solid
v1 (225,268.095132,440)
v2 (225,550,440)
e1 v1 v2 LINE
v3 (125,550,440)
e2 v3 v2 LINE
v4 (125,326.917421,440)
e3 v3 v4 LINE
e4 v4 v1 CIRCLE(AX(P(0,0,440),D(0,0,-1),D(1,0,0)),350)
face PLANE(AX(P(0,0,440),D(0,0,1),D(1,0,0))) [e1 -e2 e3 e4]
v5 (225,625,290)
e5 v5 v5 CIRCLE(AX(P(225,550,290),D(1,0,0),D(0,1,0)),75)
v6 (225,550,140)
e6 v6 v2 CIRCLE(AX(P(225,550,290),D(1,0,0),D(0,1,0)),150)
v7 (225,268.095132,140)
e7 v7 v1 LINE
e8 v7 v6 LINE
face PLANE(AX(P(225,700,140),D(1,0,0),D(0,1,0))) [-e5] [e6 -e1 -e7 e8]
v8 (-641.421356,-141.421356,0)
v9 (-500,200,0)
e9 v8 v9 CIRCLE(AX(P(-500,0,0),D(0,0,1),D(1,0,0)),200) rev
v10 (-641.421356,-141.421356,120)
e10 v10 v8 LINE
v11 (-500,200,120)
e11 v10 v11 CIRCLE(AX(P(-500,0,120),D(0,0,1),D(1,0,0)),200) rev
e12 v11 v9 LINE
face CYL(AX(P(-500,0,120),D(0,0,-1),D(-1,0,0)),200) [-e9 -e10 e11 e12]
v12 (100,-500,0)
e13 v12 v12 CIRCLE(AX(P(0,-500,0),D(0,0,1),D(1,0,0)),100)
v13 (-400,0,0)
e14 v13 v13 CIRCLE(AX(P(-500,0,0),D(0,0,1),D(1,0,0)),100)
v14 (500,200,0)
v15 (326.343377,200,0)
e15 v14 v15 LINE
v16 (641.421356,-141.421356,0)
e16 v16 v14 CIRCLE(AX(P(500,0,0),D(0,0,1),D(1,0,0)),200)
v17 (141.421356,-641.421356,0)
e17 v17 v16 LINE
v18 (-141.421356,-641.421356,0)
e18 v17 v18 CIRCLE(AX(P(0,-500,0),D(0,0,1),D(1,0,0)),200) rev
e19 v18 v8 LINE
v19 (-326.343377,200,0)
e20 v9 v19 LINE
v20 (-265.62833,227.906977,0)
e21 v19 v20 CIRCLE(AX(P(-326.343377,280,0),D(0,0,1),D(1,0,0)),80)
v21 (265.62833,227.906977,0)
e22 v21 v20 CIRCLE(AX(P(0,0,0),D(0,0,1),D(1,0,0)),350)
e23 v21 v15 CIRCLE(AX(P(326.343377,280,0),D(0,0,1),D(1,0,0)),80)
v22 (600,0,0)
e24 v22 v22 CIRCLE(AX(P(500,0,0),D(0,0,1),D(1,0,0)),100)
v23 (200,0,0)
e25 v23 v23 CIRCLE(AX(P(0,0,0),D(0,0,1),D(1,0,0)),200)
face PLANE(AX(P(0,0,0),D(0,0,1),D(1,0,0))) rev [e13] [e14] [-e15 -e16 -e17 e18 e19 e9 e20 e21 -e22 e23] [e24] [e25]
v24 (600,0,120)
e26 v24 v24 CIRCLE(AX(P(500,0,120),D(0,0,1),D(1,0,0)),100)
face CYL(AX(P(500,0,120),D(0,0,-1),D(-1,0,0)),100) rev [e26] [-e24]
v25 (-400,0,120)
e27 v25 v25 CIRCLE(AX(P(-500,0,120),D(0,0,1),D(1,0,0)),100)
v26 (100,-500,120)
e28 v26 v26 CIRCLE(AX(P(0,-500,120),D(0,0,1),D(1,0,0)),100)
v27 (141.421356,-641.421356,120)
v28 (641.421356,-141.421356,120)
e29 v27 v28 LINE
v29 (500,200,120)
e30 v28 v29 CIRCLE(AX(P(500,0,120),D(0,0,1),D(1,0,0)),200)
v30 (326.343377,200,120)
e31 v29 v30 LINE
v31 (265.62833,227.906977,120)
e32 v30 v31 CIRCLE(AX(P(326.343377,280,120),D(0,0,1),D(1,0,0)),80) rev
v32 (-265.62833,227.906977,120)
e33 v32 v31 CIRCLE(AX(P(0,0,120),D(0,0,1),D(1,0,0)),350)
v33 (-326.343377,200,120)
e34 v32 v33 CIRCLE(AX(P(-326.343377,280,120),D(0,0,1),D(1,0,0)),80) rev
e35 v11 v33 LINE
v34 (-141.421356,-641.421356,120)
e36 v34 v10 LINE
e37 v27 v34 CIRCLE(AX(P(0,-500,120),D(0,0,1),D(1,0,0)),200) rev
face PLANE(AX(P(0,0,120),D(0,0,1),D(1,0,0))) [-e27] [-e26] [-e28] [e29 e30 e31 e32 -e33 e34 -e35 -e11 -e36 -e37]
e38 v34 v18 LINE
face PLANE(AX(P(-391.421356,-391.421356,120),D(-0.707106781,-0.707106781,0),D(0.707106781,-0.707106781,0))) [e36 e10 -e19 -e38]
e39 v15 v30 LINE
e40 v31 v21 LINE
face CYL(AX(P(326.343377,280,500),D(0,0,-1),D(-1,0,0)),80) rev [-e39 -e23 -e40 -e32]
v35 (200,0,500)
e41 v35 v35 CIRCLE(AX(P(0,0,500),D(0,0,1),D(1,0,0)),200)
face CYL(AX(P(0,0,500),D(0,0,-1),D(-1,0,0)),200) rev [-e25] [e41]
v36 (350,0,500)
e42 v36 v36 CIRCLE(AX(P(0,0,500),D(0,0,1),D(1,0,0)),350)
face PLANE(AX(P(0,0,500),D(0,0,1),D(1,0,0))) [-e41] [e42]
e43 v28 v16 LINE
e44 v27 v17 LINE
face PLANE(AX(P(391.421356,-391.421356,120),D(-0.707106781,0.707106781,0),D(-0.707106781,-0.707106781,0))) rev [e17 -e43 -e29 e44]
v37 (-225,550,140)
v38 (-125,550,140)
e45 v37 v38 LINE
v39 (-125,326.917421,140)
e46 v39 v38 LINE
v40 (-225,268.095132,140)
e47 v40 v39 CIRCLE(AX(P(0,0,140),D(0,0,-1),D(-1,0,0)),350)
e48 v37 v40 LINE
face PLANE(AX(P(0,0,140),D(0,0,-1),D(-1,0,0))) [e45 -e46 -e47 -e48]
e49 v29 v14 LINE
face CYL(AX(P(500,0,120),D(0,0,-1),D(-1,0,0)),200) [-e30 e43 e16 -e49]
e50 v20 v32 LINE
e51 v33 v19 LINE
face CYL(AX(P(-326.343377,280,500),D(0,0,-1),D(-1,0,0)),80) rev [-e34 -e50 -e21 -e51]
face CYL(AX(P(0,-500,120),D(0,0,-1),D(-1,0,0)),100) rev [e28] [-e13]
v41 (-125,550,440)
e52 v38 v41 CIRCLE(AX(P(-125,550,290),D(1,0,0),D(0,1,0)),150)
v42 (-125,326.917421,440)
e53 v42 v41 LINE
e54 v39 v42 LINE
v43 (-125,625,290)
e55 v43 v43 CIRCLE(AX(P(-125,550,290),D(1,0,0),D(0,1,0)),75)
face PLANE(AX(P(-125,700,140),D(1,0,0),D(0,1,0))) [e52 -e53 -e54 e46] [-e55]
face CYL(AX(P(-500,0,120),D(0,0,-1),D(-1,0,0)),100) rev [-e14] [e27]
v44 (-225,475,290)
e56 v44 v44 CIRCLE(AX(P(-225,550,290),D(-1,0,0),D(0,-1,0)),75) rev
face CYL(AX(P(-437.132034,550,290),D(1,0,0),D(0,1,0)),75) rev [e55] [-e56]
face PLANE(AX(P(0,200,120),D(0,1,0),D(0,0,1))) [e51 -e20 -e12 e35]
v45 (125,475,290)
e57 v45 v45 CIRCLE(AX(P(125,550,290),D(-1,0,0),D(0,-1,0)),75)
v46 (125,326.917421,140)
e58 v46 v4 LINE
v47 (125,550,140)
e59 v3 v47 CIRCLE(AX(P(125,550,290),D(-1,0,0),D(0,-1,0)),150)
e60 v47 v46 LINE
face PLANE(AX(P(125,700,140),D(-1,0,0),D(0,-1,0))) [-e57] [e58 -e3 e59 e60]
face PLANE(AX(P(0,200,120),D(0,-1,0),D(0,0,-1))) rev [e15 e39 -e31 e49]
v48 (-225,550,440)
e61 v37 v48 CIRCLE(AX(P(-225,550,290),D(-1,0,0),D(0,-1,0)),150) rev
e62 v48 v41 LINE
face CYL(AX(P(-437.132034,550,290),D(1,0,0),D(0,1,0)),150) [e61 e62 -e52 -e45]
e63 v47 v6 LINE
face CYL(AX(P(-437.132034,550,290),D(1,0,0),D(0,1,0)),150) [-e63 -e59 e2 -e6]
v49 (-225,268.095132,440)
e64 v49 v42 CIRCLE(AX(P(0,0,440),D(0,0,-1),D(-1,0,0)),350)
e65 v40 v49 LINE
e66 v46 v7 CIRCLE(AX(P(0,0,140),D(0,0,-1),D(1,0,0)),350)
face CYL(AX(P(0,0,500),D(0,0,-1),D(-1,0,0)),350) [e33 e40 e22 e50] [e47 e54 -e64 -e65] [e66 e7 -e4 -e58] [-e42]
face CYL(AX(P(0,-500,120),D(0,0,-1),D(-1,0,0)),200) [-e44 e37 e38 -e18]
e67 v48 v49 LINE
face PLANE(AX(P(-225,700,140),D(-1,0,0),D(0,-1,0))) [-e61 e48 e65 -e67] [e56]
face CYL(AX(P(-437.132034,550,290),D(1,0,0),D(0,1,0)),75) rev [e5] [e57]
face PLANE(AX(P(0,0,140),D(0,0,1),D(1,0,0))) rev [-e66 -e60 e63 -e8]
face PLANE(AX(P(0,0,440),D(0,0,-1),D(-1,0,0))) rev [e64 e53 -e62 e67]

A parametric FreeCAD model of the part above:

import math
import FreeCAD as App
import Part
import Sketcher
from FreeCAD import Vector


def edges_at(feature, points):
    """Names of the edges that pass closest to the given points."""
    edges = feature.Shape.Edges
    near = lambda p: min(range(len(edges)), key=lambda i: edges[i].distToShape(Part.Vertex(*p))[0])
    return sorted({f"Edge{near(p) + 1}" for p in points})

doc = App.newDocument("Part")
params = doc.addObject("Spreadsheet::Sheet", "Params")
for row, (alias, value) in enumerate([
    ("sketch1_diameter", "700 mm"),
    ("sketch1_diameter2", "400 mm"),
    ("pad1_length", "500 mm"),
    ("sketch2_diameter", "200 mm"),
    ("sketch2_radius", "200 mm"),
    ("sketch2_radius2", "350 mm"),
    ("pad2_length", "120 mm"),
    ("fillet_radius", "80 mm"),
    ("sketch3_radius", "350 mm"),
    ("sketch3_width", "100 mm"),
    ("pad3_length", "300 mm"),
    ("sketch4_diameter", "150 mm"),
    ("sketch4_radius", "150 mm"),
    ("pocket1_length", "450 mm"),
], start=1):
    params.set(f"A{row}", alias)
    params.set(f"B{row}", "=" + value)
    params.setAlias(f"B{row}", alias)

body = doc.addObject("PartDesign::Body", "Body")

# Sketch on XY plane
sketch1 = doc.addObject("Sketcher::SketchObject", "Sketch")
body.addObject(sketch1)
sketch1.AttachmentSupport = (doc.XY_Plane, [""])
sketch1.MapMode = "FlatFace"
sketch1.addGeometry([
    Part.Circle(Vector(0, 0, 0), Vector(0, 0, 1), 350),
    Part.Circle(Vector(0, 0, 0), Vector(0, 0, 1), 200),
], False)
sketch1.addConstraint([
    Sketcher.Constraint("Coincident", 0, 3, -1, 1),
    Sketcher.Constraint("Coincident", 1, 3, -1, 1),
    Sketcher.Constraint("Diameter", 0, 700.0),
    Sketcher.Constraint("Diameter", 1, 400.0),
])
sketch1.setExpression("Constraints[2]", "Params.sketch1_diameter")
sketch1.setExpression("Constraints[3]", "Params.sketch1_diameter2")
pad1 = doc.addObject("PartDesign::Pad", "Pad")
body.addObject(pad1)
pad1.Profile = sketch1
pad1.setExpression("Length", "Params.pad1_length")

# Sketch on XY plane
sketch2 = doc.addObject("Sketcher::SketchObject", "Sketch001")
body.addObject(sketch2)
sketch2.AttachmentSupport = (doc.XY_Plane, [""])
sketch2.MapMode = "FlatFace"
sketch2.addGeometry([
    Part.ArcOfCircle(Part.Circle(Vector(0, -500, 0), Vector(0, 0, 1), 200), math.radians(-135), math.radians(-45)),  # 0
    Part.LineSegment(Vector(141, -641, 0), Vector(641, -141, 0)),  # 1
    Part.ArcOfCircle(Part.Circle(Vector(500, 0, 0), Vector(0, 0, 1), 200), math.radians(-45), math.radians(90)),  # 2
    Part.LineSegment(Vector(500, 200, 0), Vector(287, 200, 0)),  # 3
    Part.ArcOfCircle(Part.Circle(Vector(0, 0, 0), Vector(0, 0, 1), 350), math.radians(0), math.radians(35)),  # 4
    Part.ArcOfCircle(Part.Circle(Vector(0, 0, 0), Vector(0, 0, 1), 350), math.radians(145), math.radians(360)),  # 5
    Part.LineSegment(Vector(-287, 200, 0), Vector(-500, 200, 0)),  # 6
    Part.ArcOfCircle(Part.Circle(Vector(-500, 0, 0), Vector(0, 0, 1), 200), math.radians(90), math.radians(225)),  # 7
    Part.LineSegment(Vector(-641, -141, 0), Vector(-141, -641, 0)),  # 8
    Part.Circle(Vector(0, -500, 0), Vector(0, 0, 1), 100),  # 9
    Part.Circle(Vector(-500, 0, 0), Vector(0, 0, 1), 100),  # 10
    Part.Circle(Vector(500, 0, 0), Vector(0, 0, 1), 100),  # 11
], False)
sketch2.addConstraint([
    Sketcher.Constraint("Tangent", 0, 2, 1, 1),
    Sketcher.Constraint("Tangent", 1, 2, 2, 1),
    Sketcher.Constraint("Tangent", 2, 2, 3, 1),
    Sketcher.Constraint("Coincident", 3, 2, 4, 2),
    Sketcher.Constraint("Tangent", 4, 1, 5, 2),
    Sketcher.Constraint("Coincident", 5, 1, 6, 1),
    Sketcher.Constraint("Tangent", 6, 2, 7, 1),
    Sketcher.Constraint("Tangent", 7, 2, 8, 1),
    Sketcher.Constraint("Tangent", 8, 2, 0, 1),
    Sketcher.Constraint("Horizontal", 3),
    Sketcher.Constraint("Horizontal", 6),
    Sketcher.Constraint("Coincident", 4, 3, -1, 1),
    Sketcher.Constraint("Coincident", 9, 3, 0, 3),
    Sketcher.Constraint("Coincident", 10, 3, 7, 3),
    Sketcher.Constraint("Coincident", 11, 3, 2, 3),
    Sketcher.Constraint("Equal", 0, 2),
    Sketcher.Constraint("Equal", 4, 5),
    Sketcher.Constraint("Equal", 2, 7),
    Sketcher.Constraint("Equal", 9, 10),
    Sketcher.Constraint("Equal", 10, 11),
    Sketcher.Constraint("Symmetric", 2, 3, 7, 3, -1, 1),
    Sketcher.Constraint("PointOnObject", 0, 3, -2),
    Sketcher.Constraint("PointOnObject", 2, 3, -1),
    Sketcher.Constraint("PointOnObject", 4, 1, -1),
    Sketcher.Constraint("Perpendicular", 1, 8),
    Sketcher.Constraint("Diameter", 9, 200.0),
    Sketcher.Constraint("Radius", 0, 200.0),
    Sketcher.Constraint("Radius", 4, 350.0),
    Sketcher.Constraint("DistanceY", 0, 3, -1, 1, 500.0),
])
sketch2.setExpression("Constraints[25]", "Params.sketch2_diameter")
sketch2.setExpression("Constraints[26]", "Params.sketch2_radius")
sketch2.setExpression("Constraints[27]", "Params.sketch2_radius2")
pad2 = doc.addObject("PartDesign::Pad", "Pad001")
body.addObject(pad2)
pad2.Profile = sketch2
pad2.setExpression("Length", "Params.pad2_length")
doc.recompute()

fillet = doc.addObject("PartDesign::Fillet", "Fillet")
body.addObject(fillet)
fillet.Base = (pad2, edges_at(pad2, [(287.228, 200, 60), (-287.228, 200, 60)]))
fillet.setExpression("Radius", "Params.fillet_radius")

# Sketch on XY plane
sketch3 = doc.addObject("Sketcher::SketchObject", "Sketch002")
body.addObject(sketch3)
sketch3.AttachmentSupport = (doc.XY_Plane, [""])
sketch3.MapMode = "FlatFace"
sketch3.AttachmentOffset = App.Placement(Vector(0, 0, 440), App.Rotation())
sketch3.addGeometry([
    Part.LineSegment(Vector(225, 700, 0), Vector(125, 700, 0)),  # 0
    Part.LineSegment(Vector(125, 700, 0), Vector(125, 327, 0)),  # 1
    Part.ArcOfCircle(Part.Circle(Vector(0, 0, 0), Vector(0, 0, 1), 350), math.radians(49.99), math.radians(69.08)),  # 2
    Part.LineSegment(Vector(225, 268, 0), Vector(225, 700, 0)),  # 3
    Part.LineSegment(Vector(-225, 700, 0), Vector(-225, 268, 0)),  # 4
    Part.ArcOfCircle(Part.Circle(Vector(0, 0, 0), Vector(0, 0, 1), 350), math.radians(110.92), math.radians(130.01)),  # 5
    Part.LineSegment(Vector(-125, 327, 0), Vector(-125, 700, 0)),  # 6
    Part.LineSegment(Vector(-125, 700, 0), Vector(-225, 700, 0)),  # 7
], False)
sketch3.addConstraint([
    Sketcher.Constraint("Coincident", 0, 2, 1, 1),
    Sketcher.Constraint("Coincident", 1, 2, 2, 2),
    Sketcher.Constraint("Coincident", 2, 1, 3, 1),
    Sketcher.Constraint("Coincident", 3, 2, 0, 1),
    Sketcher.Constraint("Coincident", 4, 2, 5, 2),
    Sketcher.Constraint("Coincident", 5, 1, 6, 1),
    Sketcher.Constraint("Coincident", 6, 2, 7, 1),
    Sketcher.Constraint("Coincident", 7, 2, 4, 1),
    Sketcher.Constraint("Horizontal", 0),
    Sketcher.Constraint("Vertical", 1),
    Sketcher.Constraint("Vertical", 3),
    Sketcher.Constraint("Vertical", 4),
    Sketcher.Constraint("Vertical", 6),
    Sketcher.Constraint("Horizontal", 7),
    Sketcher.Constraint("Coincident", 2, 3, -1, 1),
    Sketcher.Constraint("Coincident", 5, 3, -1, 1),
    Sketcher.Constraint("Equal", 2, 5),
    Sketcher.Constraint("Symmetric", 0, 2, 6, 2, -2),
    Sketcher.Constraint("Horizontal", 2, 1, 4, 2),
    Sketcher.Constraint("Radius", 2, 350.0),
    Sketcher.Constraint("DistanceX", 0, 2, 0, 1, 100.0),
    Sketcher.Constraint("DistanceX", -1, 1, 0, 2, 125.0),
    Sketcher.Constraint("DistanceY", -1, 1, 0, 2, 700.0),
])
sketch3.setExpression("Constraints[19]", "Params.sketch3_radius")
sketch3.setExpression("Constraints[20]", "Params.sketch3_width")
pad3 = doc.addObject("PartDesign::Pad", "Pad002")
body.addObject(pad3)
pad3.Profile = sketch3
pad3.setExpression("Length", "Params.pad3_length")
pad3.Reversed = True

# Sketch on YZ plane
sketch4 = doc.addObject("Sketcher::SketchObject", "Sketch003")
body.addObject(sketch4)
sketch4.AttachmentSupport = (doc.YZ_Plane, [""])
sketch4.MapMode = "FlatFace"
sketch4.AttachmentOffset = App.Placement(Vector(0, 0, 225), App.Rotation())
sketch4.addGeometry([
    Part.ArcOfCircle(Part.Circle(Vector(550, 290, 0), Vector(0, 0, 1), 150), math.radians(0), math.radians(90)),  # 0
    Part.LineSegment(Vector(700, 290, 0), Vector(700, 440, 0)),  # 1
    Part.LineSegment(Vector(700, 440, 0), Vector(550, 440, 0)),  # 2
    Part.ArcOfCircle(Part.Circle(Vector(550, 290, 0), Vector(0, 0, 1), 150), math.radians(-90), math.radians(0)),  # 3
    Part.LineSegment(Vector(550, 140, 0), Vector(700, 140, 0)),  # 4
    Part.LineSegment(Vector(700, 140, 0), Vector(700, 290, 0)),  # 5
    Part.Circle(Vector(550, 290, 0), Vector(0, 0, 1), 75),  # 6
], False)
sketch4.addConstraint([
    Sketcher.Constraint("Tangent", 0, 1, 1, 1),
    Sketcher.Constraint("Coincident", 1, 2, 2, 1),
    Sketcher.Constraint("Tangent", 2, 2, 0, 2),
    Sketcher.Constraint("Tangent", 3, 1, 4, 1),
    Sketcher.Constraint("Coincident", 4, 2, 5, 1),
    Sketcher.Constraint("Tangent", 5, 2, 3, 2),
    Sketcher.Constraint("Vertical", 1),
    Sketcher.Constraint("Horizontal", 2),
    Sketcher.Constraint("Horizontal", 4),
    Sketcher.Constraint("Vertical", 5),
    Sketcher.Constraint("Coincident", 3, 3, 0, 3),
    Sketcher.Constraint("Coincident", 6, 3, 0, 3),
    Sketcher.Constraint("Equal", 0, 3),
    Sketcher.Constraint("Diameter", 6, 150.0),
    Sketcher.Constraint("Radius", 0, 150.0),
    Sketcher.Constraint("DistanceX", -1, 1, 0, 3, 550.0),
    Sketcher.Constraint("DistanceY", -1, 1, 0, 3, 290.0),
])
sketch4.setExpression("Constraints[13]", "Params.sketch4_diameter")
sketch4.setExpression("Constraints[14]", "Params.sketch4_radius")
pocket1 = doc.addObject("PartDesign::Pocket", "Pocket")
body.addObject(pocket1)
pocket1.Profile = sketch4
pocket1.setExpression("Length", "Params.pocket1_length")

doc.recompute()
